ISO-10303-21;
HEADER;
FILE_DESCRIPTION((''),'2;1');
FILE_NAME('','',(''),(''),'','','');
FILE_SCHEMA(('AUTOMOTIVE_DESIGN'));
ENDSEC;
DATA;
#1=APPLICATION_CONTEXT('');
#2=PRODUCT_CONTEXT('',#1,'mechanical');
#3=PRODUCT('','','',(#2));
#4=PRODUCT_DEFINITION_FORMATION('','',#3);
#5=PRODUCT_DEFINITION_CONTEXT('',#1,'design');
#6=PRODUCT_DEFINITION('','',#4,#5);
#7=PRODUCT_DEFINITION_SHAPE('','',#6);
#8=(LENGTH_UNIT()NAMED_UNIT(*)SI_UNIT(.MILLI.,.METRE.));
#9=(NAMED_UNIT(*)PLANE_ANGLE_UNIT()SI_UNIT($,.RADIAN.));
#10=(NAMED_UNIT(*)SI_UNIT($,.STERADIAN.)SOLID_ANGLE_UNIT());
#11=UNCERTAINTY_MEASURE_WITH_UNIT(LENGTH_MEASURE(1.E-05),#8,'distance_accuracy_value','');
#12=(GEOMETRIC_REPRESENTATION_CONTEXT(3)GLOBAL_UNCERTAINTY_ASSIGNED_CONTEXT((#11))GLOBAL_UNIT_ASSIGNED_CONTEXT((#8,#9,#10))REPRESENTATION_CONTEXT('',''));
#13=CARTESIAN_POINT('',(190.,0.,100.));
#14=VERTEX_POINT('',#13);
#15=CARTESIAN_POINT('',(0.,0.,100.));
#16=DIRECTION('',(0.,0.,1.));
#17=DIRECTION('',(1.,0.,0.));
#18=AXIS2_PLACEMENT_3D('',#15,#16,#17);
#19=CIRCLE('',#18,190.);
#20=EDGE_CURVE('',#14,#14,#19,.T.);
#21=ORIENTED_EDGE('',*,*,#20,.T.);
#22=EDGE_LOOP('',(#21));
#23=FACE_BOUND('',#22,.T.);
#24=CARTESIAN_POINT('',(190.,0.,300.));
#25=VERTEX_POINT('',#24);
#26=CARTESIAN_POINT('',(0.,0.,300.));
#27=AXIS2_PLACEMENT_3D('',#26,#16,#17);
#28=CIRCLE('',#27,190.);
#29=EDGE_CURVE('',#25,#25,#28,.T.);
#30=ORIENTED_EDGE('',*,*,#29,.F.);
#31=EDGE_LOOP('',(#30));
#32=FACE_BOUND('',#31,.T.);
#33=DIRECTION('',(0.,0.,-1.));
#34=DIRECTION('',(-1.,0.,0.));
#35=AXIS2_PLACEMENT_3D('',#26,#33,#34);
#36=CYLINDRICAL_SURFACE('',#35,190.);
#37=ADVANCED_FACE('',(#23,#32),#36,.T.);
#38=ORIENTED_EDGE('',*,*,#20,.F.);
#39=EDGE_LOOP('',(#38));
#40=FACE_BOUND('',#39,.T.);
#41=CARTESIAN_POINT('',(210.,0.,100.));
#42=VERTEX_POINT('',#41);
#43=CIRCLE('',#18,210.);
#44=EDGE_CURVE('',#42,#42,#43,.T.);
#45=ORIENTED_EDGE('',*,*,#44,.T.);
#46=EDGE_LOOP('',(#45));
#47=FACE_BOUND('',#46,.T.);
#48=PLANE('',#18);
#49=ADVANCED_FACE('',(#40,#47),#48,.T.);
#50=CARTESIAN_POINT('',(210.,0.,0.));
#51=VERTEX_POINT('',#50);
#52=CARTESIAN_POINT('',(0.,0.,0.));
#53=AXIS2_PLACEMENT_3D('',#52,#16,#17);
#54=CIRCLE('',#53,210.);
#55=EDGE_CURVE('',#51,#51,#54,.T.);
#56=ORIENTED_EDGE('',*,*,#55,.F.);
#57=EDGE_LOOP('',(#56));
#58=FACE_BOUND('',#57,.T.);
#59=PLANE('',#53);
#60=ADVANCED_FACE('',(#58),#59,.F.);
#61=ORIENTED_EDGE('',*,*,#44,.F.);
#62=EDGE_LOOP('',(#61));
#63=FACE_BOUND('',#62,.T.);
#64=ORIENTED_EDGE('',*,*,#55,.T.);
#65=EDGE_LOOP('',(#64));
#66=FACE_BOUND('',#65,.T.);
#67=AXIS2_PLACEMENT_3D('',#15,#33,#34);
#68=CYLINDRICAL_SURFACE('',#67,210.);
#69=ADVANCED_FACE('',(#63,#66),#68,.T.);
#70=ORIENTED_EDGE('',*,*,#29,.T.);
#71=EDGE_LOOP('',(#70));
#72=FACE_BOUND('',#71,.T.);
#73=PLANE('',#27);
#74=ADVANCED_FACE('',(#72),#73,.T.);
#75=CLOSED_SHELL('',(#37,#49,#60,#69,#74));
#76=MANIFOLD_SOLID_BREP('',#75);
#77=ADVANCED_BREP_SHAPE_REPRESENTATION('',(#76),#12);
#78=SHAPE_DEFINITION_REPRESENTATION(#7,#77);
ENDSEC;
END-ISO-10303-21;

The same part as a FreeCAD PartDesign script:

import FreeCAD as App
import Part
import Sketcher
Q = App.Units.Quantity

doc = App.newDocument("Part")
body = doc.addObject("PartDesign::Body", "Body")

sketch1 = body.newObject("Sketcher::SketchObject", "Sketch")
sketch1.AttachmentSupport = (doc.getObject("XY_Plane"), [""])
sketch1.MapMode = "FlatFace"
sketch1.addGeometry(Part.Circle(App.Vector(0, 0, 0), App.Vector(0, 0, 1), 210), False)
sketch1.addConstraint([
    Sketcher.Constraint("Coincident", 0, 3, -1, 1),
    Sketcher.Constraint("Diameter", 0, Q("420 mm")),
])
pad1 = body.newObject("PartDesign::Pad", "Pad")
pad1.Profile = sketch1
pad1.Length = 100

sketch2 = body.newObject("Sketcher::SketchObject", "Sketch001")
sketch2.AttachmentSupport = (doc.getObject("XY_Plane"), [""])
sketch2.MapMode = "FlatFace"
sketch2.AttachmentOffset = App.Placement(App.Vector(0, 0, 100), App.Rotation())
sketch2.addGeometry(Part.Circle(App.Vector(0, 0, 0), App.Vector(0, 0, 1), 190), False)
sketch2.addConstraint([
    Sketcher.Constraint("Coincident", 0, 3, -1, 1),
    Sketcher.Constraint("Diameter", 0, Q("380 mm")),
])
pad2 = body.newObject("PartDesign::Pad", "Pad001")
pad2.Profile = sketch2
pad2.Length = 200

doc.recompute()
